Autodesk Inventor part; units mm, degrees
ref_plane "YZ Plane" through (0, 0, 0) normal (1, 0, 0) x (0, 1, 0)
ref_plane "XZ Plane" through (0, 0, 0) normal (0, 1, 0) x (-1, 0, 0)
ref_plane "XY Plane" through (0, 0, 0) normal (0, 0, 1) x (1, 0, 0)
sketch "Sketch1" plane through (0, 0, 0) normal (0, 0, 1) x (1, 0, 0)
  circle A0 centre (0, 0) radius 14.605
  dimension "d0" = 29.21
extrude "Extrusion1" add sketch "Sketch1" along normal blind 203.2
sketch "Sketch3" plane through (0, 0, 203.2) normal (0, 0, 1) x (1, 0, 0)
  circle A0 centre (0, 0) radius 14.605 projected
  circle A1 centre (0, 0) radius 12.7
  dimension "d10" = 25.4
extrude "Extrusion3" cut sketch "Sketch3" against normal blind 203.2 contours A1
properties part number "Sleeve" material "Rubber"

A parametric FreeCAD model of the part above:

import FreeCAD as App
import Part
import Sketcher
Q = App.Units.Quantity

doc = App.newDocument("Part")
params = doc.addObject("Spreadsheet::Sheet", "Params")
for row, (alias, value) in enumerate([
    ("sketch1_diameter", "1.15 in"),
    ("pad1_length", "8 in"),
    ("sketch2_diameter", "1 in"),
    ("pocket1_length", "8 in"),
], start=1):
    params.set(f"A{row}", alias)
    params.set(f"B{row}", "=" + value)
    params.setAlias(f"B{row}", alias)

body = doc.addObject("PartDesign::Body", "Body")

sketch1 = body.newObject("Sketcher::SketchObject", "Sketch")
sketch1.AttachmentSupport = (doc.getObject("XY_Plane"), [""])
sketch1.MapMode = "FlatFace"
sketch1.addGeometry(Part.Circle(App.Vector(0, 0, 0), App.Vector(0, 0, 1), 15), False)
sketch1.addConstraint(Sketcher.Constraint("Coincident", 0, 3, -1, 1))
sketch1.addConstraint(Sketcher.Constraint("Diameter", 0, Q("1.15 in")))
sketch1.setExpression("Constraints[1]", "Params.sketch1_diameter")
pad1 = body.newObject("PartDesign::Pad", "Pad")
pad1.Profile = sketch1
pad1.setExpression("Length", "Params.pad1_length")

sketch2 = body.newObject("Sketcher::SketchObject", "Sketch001")
sketch2.AttachmentSupport = (doc.getObject("XY_Plane"), [""])
sketch2.MapMode = "FlatFace"
sketch2.AttachmentOffset = App.Placement(App.Vector(0, 0, 8 * 25.4), App.Rotation())
sketch2.addGeometry(Part.Circle(App.Vector(0, 0, 0), App.Vector(0, 0, 1), 13), False)
sketch2.addConstraint(Sketcher.Constraint("Coincident", 0, 3, -1, 1))
sketch2.addConstraint(Sketcher.Constraint("Diameter", 0, Q("1 in")))
sketch2.setExpression("Constraints[1]", "Params.sketch2_diameter")
pocket1 = body.newObject("PartDesign::Pocket", "Pocket")
pocket1.Profile = sketch2
pocket1.setExpression("Length", "Params.pocket1_length")

doc.recompute()
